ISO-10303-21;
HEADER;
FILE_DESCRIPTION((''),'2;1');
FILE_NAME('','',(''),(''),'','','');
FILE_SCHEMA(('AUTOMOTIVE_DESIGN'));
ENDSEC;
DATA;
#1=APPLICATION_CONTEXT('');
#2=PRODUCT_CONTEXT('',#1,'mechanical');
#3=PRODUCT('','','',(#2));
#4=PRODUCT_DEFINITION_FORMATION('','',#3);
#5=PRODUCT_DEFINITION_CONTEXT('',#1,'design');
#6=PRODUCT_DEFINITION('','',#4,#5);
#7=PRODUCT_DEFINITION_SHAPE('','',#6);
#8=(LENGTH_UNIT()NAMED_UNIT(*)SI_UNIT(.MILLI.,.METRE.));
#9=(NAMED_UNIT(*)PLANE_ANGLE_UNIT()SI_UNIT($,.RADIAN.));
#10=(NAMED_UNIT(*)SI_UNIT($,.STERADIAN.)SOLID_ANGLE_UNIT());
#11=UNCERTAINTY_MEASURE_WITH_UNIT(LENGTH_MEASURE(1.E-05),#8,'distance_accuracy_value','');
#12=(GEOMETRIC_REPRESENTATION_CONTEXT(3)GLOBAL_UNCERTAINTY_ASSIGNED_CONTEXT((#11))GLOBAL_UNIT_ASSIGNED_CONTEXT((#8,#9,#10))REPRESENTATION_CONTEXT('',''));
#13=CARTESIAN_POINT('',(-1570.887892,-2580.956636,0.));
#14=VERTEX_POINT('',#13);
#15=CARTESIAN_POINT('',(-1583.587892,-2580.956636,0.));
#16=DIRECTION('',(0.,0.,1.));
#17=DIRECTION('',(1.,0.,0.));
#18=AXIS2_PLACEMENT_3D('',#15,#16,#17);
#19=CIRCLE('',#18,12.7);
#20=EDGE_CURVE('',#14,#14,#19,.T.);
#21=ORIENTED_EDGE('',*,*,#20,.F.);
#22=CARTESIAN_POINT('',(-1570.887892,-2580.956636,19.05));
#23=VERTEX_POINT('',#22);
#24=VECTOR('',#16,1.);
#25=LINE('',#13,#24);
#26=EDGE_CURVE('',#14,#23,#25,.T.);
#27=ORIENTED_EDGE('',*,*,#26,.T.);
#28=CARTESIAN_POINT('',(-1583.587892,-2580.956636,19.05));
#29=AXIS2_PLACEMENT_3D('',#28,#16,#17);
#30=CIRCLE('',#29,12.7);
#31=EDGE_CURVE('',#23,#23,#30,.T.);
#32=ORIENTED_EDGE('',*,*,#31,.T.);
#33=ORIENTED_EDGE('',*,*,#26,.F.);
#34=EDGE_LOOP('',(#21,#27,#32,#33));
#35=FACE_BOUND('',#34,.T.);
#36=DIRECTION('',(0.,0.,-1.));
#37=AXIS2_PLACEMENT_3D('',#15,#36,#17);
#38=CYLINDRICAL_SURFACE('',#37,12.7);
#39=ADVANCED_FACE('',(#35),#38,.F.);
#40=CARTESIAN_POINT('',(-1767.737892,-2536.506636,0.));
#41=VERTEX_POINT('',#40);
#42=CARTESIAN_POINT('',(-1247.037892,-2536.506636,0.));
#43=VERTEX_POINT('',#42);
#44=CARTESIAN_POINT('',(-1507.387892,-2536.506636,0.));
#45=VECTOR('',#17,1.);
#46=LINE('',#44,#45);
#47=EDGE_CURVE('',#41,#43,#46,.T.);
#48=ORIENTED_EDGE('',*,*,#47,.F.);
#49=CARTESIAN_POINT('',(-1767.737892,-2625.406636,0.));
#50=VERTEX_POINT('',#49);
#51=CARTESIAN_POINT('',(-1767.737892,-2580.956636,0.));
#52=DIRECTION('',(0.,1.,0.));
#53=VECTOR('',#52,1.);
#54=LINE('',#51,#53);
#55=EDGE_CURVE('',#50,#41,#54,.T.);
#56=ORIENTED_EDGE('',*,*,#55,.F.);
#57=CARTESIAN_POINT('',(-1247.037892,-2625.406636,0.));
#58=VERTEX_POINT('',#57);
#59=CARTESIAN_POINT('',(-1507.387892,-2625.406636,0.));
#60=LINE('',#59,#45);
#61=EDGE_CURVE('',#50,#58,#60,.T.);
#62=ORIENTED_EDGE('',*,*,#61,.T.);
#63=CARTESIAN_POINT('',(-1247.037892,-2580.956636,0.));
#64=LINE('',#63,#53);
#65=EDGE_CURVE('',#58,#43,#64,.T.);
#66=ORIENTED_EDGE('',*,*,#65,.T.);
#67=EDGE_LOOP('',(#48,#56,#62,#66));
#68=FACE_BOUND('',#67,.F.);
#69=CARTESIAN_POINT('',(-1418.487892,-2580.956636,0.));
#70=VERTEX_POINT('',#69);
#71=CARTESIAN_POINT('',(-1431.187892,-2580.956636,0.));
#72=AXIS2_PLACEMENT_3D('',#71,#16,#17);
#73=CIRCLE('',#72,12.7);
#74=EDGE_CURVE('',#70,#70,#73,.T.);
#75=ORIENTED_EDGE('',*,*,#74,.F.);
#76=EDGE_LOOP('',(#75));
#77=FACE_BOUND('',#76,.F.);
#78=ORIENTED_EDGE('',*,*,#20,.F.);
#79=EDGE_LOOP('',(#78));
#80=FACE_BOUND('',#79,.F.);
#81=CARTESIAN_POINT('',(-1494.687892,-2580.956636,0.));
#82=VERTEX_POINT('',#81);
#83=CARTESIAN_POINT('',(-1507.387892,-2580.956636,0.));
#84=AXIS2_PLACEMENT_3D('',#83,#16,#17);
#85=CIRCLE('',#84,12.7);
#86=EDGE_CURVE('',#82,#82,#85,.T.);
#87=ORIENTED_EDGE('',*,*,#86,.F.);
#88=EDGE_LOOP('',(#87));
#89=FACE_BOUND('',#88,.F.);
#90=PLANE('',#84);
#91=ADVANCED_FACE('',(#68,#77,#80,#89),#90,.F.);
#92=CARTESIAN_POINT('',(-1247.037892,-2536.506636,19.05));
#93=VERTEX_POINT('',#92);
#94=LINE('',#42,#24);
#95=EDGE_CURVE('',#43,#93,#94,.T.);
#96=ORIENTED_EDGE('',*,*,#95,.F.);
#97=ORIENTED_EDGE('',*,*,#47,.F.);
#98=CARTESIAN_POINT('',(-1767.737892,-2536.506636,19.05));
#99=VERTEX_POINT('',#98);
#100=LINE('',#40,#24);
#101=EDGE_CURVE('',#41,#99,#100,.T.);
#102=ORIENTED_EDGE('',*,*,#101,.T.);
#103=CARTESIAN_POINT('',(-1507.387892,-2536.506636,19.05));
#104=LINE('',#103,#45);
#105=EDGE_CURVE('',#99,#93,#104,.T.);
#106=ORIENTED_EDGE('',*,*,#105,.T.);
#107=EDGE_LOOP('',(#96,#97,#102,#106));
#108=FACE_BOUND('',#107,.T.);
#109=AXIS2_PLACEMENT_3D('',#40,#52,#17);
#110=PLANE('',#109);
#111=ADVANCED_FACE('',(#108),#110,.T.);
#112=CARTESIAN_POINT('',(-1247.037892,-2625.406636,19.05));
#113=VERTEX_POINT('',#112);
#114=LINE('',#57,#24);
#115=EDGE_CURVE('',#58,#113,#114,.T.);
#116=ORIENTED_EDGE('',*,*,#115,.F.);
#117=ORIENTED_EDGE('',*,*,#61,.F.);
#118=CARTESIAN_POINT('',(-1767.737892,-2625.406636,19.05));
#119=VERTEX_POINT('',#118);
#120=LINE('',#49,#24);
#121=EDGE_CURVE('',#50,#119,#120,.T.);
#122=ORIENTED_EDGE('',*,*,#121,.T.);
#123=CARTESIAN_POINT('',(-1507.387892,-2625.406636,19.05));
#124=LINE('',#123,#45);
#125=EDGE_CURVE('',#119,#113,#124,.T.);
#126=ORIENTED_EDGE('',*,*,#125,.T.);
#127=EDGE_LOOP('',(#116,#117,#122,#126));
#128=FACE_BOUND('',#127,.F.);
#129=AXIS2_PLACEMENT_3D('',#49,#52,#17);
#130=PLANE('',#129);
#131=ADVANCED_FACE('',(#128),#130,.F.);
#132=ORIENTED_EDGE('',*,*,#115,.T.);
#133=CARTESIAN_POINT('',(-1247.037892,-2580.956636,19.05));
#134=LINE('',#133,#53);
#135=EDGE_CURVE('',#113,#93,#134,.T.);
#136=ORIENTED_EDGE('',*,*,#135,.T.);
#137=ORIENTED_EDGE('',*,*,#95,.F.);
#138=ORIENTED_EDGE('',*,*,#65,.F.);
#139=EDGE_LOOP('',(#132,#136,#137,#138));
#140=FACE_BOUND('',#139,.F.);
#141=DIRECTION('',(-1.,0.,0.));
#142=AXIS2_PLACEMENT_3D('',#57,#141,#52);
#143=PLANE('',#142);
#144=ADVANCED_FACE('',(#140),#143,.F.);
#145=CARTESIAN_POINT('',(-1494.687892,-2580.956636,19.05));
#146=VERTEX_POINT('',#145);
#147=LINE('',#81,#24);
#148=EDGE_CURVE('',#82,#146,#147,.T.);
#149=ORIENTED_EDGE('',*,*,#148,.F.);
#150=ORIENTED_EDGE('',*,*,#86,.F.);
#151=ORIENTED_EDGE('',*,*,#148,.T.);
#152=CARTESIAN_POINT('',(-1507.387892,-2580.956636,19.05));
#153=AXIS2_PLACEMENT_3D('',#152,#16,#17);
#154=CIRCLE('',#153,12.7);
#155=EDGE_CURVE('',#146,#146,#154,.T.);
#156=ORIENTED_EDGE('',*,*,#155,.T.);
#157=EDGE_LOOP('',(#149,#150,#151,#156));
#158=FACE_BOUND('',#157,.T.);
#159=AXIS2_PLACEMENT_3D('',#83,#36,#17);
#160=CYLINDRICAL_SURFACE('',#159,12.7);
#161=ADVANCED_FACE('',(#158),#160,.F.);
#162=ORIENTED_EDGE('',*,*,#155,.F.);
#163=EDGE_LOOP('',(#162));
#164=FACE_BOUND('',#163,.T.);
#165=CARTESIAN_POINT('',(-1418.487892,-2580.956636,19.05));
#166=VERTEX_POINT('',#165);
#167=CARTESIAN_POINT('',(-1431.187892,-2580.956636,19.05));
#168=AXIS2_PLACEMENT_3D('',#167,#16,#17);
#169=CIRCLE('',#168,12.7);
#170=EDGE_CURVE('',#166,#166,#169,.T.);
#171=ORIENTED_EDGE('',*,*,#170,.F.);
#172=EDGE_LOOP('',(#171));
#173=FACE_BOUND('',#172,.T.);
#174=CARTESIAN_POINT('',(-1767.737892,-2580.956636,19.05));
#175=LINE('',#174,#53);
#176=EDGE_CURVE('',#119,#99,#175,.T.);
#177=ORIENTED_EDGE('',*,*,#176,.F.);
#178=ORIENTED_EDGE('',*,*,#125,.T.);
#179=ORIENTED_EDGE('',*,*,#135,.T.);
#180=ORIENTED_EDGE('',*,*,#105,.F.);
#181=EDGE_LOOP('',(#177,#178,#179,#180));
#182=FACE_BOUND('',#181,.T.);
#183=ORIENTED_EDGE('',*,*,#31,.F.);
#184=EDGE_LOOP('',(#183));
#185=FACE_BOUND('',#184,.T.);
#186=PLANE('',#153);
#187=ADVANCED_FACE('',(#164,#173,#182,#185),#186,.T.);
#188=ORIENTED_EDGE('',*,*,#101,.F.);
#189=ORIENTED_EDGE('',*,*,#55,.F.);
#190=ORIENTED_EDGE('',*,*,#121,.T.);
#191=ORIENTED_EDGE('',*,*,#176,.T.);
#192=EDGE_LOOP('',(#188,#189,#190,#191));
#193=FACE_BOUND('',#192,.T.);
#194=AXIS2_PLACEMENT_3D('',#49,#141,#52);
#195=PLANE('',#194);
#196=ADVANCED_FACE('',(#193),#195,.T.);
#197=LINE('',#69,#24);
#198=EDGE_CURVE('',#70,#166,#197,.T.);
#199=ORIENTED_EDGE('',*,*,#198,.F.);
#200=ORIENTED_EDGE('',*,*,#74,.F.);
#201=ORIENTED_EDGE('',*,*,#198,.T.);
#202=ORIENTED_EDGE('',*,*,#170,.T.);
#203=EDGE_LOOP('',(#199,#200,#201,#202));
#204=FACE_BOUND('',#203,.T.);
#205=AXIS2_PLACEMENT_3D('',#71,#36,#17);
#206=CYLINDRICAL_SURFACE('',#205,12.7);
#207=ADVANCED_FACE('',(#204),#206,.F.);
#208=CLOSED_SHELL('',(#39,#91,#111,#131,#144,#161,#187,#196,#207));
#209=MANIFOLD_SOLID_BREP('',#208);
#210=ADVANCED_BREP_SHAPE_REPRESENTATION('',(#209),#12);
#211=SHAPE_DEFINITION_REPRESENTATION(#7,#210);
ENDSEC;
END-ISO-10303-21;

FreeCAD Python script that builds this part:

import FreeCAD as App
import Part
import Sketcher

V = App.Vector
Q = App.Units.Quantity

doc = App.newDocument("Part")
body = doc.addObject("PartDesign::Body", "Body")

sketch1 = doc.addObject("Sketcher::SketchObject", "Sketch")
body.addObject(sketch1)
sketch1.AttachmentSupport = (doc.XY_Plane, [""])
sketch1.MapMode = "FlatFace"
sketch1.addGeometry(Part.LineSegment(V(-1768, -2537, 0), V(-1768, -2625, 0)), False)
sketch1.addGeometry(Part.LineSegment(V(-1768, -2625, 0), V(-1247, -2625, 0)), False)
sketch1.addGeometry(Part.LineSegment(V(-1247, -2625, 0), V(-1247, -2537, 0)), False)
sketch1.addGeometry(Part.LineSegment(V(-1247, -2537, 0), V(-1768, -2537, 0)), False)
sketch1.addGeometry(Part.Circle(V(-1584, -2581, 0), V(0, 0, 1), 13), False)
sketch1.addGeometry(Part.Circle(V(-1507, -2581, 0), V(0, 0, 1), 13), False)
sketch1.addGeometry(Part.Circle(V(-1431, -2581, 0), V(0, 0, 1), 13), False)
sketch1.addConstraint(Sketcher.Constraint("Coincident", 0, 2, 1, 1))
sketch1.addConstraint(Sketcher.Constraint("Coincident", 1, 2, 2, 1))
sketch1.addConstraint(Sketcher.Constraint("Coincident", 2, 2, 3, 1))
sketch1.addConstraint(Sketcher.Constraint("Coincident", 3, 2, 0, 1))
sketch1.addConstraint(Sketcher.Constraint("Vertical", 0))
sketch1.addConstraint(Sketcher.Constraint("Horizontal", 1))
sketch1.addConstraint(Sketcher.Constraint("Vertical", 2))
sketch1.addConstraint(Sketcher.Constraint("Horizontal", 3))
sketch1.addConstraint(Sketcher.Constraint("Equal", 4, 5))
sketch1.addConstraint(Sketcher.Constraint("Equal", 5, 6))
sketch1.addConstraint(Sketcher.Constraint("Horizontal", 4, 3, 5, 3))
sketch1.addConstraint(Sketcher.Constraint("Horizontal", 5, 3, 6, 3))
sketch1.addConstraint(Sketcher.Constraint("Diameter", 4, Q("1 in")))
sketch1.addConstraint(Sketcher.Constraint("DistanceX", 1, 1, 1, 2, Q("20.5 in")))
sketch1.addConstraint(Sketcher.Constraint("DistanceY", 0, 2, 0, 1, Q("3.5 in")))
sketch1.addConstraint(Sketcher.Constraint("DistanceX", 4, 3, 5, 3, Q("3 in")))
sketch1.addConstraint(Sketcher.Constraint("DistanceX", 5, 3, 6, 3, Q("3 in")))
sketch1.addConstraint(Sketcher.Constraint("DistanceX", 0, 2, 4, 3, Q("7.25 in")))
sketch1.addConstraint(Sketcher.Constraint("DistanceY", 0, 2, 4, 3, Q("1.75 in")))
sketch1.addConstraint(Sketcher.Constraint("DistanceX", 4, 3, -1, 1, Q("1583.587892 mm")))
sketch1.addConstraint(Sketcher.Constraint("DistanceY", 4, 3, -1, 1, Q("2580.956636 mm")))
pad1 = doc.addObject("PartDesign::Pad", "Pad")
body.addObject(pad1)
pad1.Profile = sketch1
pad1.Length = Q("0.75 in")

doc.recompute()
